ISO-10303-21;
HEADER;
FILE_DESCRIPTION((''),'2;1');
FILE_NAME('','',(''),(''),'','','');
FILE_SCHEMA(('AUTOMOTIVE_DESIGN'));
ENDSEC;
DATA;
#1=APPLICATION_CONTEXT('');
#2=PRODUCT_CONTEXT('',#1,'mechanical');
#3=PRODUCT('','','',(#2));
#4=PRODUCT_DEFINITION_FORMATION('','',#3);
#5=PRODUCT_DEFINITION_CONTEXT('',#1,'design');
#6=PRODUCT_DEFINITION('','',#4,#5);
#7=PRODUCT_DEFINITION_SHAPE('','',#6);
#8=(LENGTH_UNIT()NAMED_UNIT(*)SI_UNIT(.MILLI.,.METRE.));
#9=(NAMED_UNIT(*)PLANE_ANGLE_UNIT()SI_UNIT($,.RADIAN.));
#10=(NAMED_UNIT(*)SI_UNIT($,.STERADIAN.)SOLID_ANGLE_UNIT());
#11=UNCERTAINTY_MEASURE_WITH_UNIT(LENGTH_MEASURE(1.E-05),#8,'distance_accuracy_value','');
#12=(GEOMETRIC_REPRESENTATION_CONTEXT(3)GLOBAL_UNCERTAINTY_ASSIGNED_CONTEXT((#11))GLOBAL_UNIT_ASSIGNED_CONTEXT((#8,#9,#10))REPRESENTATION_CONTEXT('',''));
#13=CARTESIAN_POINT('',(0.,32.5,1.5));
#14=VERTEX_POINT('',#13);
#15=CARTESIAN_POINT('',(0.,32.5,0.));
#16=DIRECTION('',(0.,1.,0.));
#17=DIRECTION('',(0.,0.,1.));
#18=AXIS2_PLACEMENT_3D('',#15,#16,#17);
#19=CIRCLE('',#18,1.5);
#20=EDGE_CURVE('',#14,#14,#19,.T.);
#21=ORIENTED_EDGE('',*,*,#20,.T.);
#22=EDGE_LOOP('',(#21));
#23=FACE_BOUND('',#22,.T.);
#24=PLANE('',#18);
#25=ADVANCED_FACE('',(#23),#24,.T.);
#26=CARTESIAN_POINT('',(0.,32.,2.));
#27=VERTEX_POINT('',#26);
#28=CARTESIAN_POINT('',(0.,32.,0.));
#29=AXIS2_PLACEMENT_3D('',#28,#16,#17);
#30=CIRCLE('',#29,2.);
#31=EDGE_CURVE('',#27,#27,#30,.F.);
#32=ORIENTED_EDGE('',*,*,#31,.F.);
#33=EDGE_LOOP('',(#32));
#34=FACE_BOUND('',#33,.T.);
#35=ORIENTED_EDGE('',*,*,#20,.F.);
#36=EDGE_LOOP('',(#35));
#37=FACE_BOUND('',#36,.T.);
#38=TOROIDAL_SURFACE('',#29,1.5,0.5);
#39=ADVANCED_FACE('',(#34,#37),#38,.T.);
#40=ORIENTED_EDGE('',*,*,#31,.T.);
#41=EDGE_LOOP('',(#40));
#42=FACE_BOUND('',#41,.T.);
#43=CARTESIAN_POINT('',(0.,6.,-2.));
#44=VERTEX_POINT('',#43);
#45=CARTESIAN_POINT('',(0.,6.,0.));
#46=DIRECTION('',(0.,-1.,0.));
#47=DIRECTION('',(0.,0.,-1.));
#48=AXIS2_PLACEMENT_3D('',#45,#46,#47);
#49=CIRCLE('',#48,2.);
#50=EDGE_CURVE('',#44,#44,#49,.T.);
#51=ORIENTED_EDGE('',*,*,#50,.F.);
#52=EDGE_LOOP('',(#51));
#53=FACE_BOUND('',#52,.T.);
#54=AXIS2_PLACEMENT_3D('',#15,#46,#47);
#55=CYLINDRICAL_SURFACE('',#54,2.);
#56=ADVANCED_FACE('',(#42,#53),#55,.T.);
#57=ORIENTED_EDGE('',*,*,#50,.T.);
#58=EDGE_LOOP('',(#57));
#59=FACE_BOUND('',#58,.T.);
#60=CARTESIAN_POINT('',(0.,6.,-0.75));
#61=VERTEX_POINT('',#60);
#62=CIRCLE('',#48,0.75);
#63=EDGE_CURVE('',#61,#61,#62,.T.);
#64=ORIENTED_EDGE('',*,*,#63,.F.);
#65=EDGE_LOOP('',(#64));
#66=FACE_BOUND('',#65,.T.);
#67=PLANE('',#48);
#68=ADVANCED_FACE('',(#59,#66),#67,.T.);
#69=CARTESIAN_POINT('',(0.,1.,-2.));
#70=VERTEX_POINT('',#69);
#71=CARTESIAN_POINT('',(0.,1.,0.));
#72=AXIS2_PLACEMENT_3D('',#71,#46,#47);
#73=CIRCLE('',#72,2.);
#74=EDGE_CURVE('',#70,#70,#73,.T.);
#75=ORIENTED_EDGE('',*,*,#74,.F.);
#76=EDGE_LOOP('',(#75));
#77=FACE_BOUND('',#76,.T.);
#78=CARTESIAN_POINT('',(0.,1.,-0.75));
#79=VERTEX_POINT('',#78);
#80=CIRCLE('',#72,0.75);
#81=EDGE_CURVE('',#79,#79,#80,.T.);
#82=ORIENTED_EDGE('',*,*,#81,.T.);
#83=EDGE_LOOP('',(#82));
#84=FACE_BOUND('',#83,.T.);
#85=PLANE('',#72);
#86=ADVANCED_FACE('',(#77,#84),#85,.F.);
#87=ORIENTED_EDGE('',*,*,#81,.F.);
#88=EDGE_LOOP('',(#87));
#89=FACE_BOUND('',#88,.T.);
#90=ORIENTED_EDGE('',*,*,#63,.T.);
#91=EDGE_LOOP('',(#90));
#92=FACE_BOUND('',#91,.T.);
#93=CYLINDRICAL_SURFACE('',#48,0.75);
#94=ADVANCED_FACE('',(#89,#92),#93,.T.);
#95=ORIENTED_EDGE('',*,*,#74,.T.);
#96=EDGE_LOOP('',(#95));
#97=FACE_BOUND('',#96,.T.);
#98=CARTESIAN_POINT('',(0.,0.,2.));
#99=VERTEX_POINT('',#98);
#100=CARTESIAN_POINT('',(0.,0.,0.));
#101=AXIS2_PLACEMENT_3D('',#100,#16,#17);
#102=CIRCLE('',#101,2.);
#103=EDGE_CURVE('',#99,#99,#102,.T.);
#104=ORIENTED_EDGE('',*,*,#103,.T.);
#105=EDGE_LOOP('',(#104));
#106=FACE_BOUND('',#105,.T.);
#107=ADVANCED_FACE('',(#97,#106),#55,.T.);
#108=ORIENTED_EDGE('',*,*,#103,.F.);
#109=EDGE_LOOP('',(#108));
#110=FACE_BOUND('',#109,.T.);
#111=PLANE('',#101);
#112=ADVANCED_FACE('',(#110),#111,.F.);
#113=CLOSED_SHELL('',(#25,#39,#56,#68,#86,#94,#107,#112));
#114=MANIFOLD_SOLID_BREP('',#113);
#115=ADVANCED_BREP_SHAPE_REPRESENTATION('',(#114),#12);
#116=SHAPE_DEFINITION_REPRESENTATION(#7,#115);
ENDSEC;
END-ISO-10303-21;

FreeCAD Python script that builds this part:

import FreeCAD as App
import Part
import Sketcher

V = App.Vector


def edges_at(feature, points):
    """Names of the edges that pass closest to the given points."""
    edges = feature.Shape.Edges
    near = lambda p: min(range(len(edges)), key=lambda i: edges[i].distToShape(Part.Vertex(*p))[0])
    return sorted({f"Edge{near(p) + 1}" for p in points})

doc = App.newDocument("Part")
body = doc.addObject("PartDesign::Body", "Body")

# Sketch on XZ plane
sketch1 = body.newObject("Sketcher::SketchObject", "Sketch")
sketch1.AttachmentSupport = (doc.getObject("XZ_Plane"), [""])
sketch1.MapMode = "FlatFace"
sketch1.addGeometry(Part.Circle(V(0, 0, 0), V(0, 0, 1), 2), False)
sketch1.addConstraint(Sketcher.Constraint("Coincident", 0, 3, -1, 1))
sketch1.addConstraint(Sketcher.Constraint("Diameter", 0, 4.0))
pad1 = body.newObject("PartDesign::Pad", "Pad")
pad1.Profile = sketch1
pad1.Length = 32.5
pad1.Reversed = True

# Sketch on XZ plane
sketch2 = body.newObject("Sketcher::SketchObject", "Sketch001")
sketch2.AttachmentSupport = (doc.getObject("XZ_Plane"), [""])
sketch2.MapMode = "FlatFace"
sketch2.AttachmentOffset = App.Placement(V(0, 0, -1), App.Rotation())
sketch2.addGeometry(Part.Circle(V(0, 0, 0), V(0, 0, 1), 2), False)
sketch2.addGeometry(Part.Circle(V(0, 0, 0), V(0, 0, 1), 0.8), False)
sketch2.addConstraint(Sketcher.Constraint("Coincident", 0, 3, -1, 1))
sketch2.addConstraint(Sketcher.Constraint("Coincident", 1, 3, -1, 1))
sketch2.addConstraint(Sketcher.Constraint("Diameter", 0, 4.0))
sketch2.addConstraint(Sketcher.Constraint("Diameter", 1, 1.5))
pocket1 = body.newObject("PartDesign::Pocket", "Pocket")
pocket1.Profile = sketch2
pocket1.Length = 5
doc.recompute()

fillet = body.newObject("PartDesign::Fillet", "Fillet")
fillet.Base = (pocket1, edges_at(pocket1, [(-2, 32.5, 0)]))
fillet.Radius = 0.5

doc.recompute()
